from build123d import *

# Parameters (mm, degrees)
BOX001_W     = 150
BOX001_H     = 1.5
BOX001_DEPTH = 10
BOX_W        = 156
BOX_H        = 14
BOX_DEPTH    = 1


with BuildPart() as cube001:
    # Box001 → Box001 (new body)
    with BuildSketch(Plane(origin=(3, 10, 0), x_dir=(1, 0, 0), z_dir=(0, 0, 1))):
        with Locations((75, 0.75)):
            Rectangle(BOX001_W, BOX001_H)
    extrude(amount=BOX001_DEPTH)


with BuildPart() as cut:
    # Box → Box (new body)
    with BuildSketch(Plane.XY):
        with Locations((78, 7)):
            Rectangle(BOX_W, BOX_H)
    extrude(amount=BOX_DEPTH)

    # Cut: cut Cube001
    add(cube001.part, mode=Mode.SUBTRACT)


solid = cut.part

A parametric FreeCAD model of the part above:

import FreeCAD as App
import Part
import Sketcher
Q = App.Units.Quantity

doc = App.newDocument("Part")
body = doc.addObject("PartDesign::Body", "Body")

sketch1 = body.newObject("Sketcher::SketchObject", "Sketch")
sketch1.AttachmentSupport = (doc.getObject("XY_Plane"), [""])
sketch1.MapMode = "FlatFace"
sketch1.addGeometry(Part.LineSegment(App.Vector(3, 11.5, 0), App.Vector(3, 10, 0)), False)
sketch1.addGeometry(Part.LineSegment(App.Vector(3, 10, 0), App.Vector(153, 10, 0)), False)
sketch1.addGeometry(Part.LineSegment(App.Vector(153, 10, 0), App.Vector(153, 11.5, 0)), False)
sketch1.addGeometry(Part.LineSegment(App.Vector(153, 11.5, 0), App.Vector(3, 11.5, 0)), False)
sketch1.addConstraint(Sketcher.Constraint("Coincident", 0, 2, 1, 1))
sketch1.addConstraint(Sketcher.Constraint("Coincident", 1, 2, 2, 1))
sketch1.addConstraint(Sketcher.Constraint("Coincident", 2, 2, 3, 1))
sketch1.addConstraint(Sketcher.Constraint("Coincident", 3, 2, 0, 1))
sketch1.addConstraint(Sketcher.Constraint("Vertical", 0))
sketch1.addConstraint(Sketcher.Constraint("Horizontal", 1))
sketch1.addConstraint(Sketcher.Constraint("Vertical", 2))
sketch1.addConstraint(Sketcher.Constraint("Horizontal", 3))
sketch1.addConstraint(Sketcher.Constraint("DistanceX", 1, 1, 1, 2, Q("150 mm")))
sketch1.addConstraint(Sketcher.Constraint("DistanceY", 0, 2, 0, 1, Q("1.5 mm")))
sketch1.addConstraint(Sketcher.Constraint("DistanceX", -1, 1, 0, 2, Q("3 mm")))
sketch1.addConstraint(Sketcher.Constraint("DistanceY", -1, 1, 0, 2, Q("10 mm")))
pad1 = body.newObject("PartDesign::Pad", "Pad")
pad1.Profile = sketch1
pad1.Length = 10
body2 = doc.addObject("PartDesign::Body", "Body001")

sketch2 = body2.newObject("Sketcher::SketchObject", "Sketch001")
sketch2.AttachmentSupport = (doc.getObject("XY_Plane001"), [""])
sketch2.MapMode = "FlatFace"
sketch2.addGeometry(Part.LineSegment(App.Vector(0, 14, 0), App.Vector(0, 0, 0)), False)
sketch2.addGeometry(Part.LineSegment(App.Vector(0, 0, 0), App.Vector(156, 0, 0)), False)
sketch2.addGeometry(Part.LineSegment(App.Vector(156, 0, 0), App.Vector(156, 14, 0)), False)
sketch2.addGeometry(Part.LineSegment(App.Vector(156, 14, 0), App.Vector(0, 14, 0)), False)
sketch2.addConstraint(Sketcher.Constraint("Coincident", 0, 2, 1, 1))
sketch2.addConstraint(Sketcher.Constraint("Coincident", 1, 2, 2, 1))
sketch2.addConstraint(Sketcher.Constraint("Coincident", 2, 2, 3, 1))
sketch2.addConstraint(Sketcher.Constraint("Coincident", 3, 2, 0, 1))
sketch2.addConstraint(Sketcher.Constraint("Vertical", 0))
sketch2.addConstraint(Sketcher.Constraint("Horizontal", 1))
sketch2.addConstraint(Sketcher.Constraint("Vertical", 2))
sketch2.addConstraint(Sketcher.Constraint("Horizontal", 3))
sketch2.addConstraint(Sketcher.Constraint("Coincident", 0, 2, -1, 1))
sketch2.addConstraint(Sketcher.Constraint("DistanceX", 1, 1, 1, 2, Q("156 mm")))
sketch2.addConstraint(Sketcher.Constraint("DistanceY", 0, 2, 0, 1, Q("14 mm")))
pad2 = body2.newObject("PartDesign::Pad", "Pad001")
pad2.Profile = sketch2
pad2.Length = 1
doc.recompute()

boolean = body2.newObject("PartDesign::Boolean", "Boolean")
boolean.Type = "Cut"
boolean.addObjects([body])

doc.recompute()
